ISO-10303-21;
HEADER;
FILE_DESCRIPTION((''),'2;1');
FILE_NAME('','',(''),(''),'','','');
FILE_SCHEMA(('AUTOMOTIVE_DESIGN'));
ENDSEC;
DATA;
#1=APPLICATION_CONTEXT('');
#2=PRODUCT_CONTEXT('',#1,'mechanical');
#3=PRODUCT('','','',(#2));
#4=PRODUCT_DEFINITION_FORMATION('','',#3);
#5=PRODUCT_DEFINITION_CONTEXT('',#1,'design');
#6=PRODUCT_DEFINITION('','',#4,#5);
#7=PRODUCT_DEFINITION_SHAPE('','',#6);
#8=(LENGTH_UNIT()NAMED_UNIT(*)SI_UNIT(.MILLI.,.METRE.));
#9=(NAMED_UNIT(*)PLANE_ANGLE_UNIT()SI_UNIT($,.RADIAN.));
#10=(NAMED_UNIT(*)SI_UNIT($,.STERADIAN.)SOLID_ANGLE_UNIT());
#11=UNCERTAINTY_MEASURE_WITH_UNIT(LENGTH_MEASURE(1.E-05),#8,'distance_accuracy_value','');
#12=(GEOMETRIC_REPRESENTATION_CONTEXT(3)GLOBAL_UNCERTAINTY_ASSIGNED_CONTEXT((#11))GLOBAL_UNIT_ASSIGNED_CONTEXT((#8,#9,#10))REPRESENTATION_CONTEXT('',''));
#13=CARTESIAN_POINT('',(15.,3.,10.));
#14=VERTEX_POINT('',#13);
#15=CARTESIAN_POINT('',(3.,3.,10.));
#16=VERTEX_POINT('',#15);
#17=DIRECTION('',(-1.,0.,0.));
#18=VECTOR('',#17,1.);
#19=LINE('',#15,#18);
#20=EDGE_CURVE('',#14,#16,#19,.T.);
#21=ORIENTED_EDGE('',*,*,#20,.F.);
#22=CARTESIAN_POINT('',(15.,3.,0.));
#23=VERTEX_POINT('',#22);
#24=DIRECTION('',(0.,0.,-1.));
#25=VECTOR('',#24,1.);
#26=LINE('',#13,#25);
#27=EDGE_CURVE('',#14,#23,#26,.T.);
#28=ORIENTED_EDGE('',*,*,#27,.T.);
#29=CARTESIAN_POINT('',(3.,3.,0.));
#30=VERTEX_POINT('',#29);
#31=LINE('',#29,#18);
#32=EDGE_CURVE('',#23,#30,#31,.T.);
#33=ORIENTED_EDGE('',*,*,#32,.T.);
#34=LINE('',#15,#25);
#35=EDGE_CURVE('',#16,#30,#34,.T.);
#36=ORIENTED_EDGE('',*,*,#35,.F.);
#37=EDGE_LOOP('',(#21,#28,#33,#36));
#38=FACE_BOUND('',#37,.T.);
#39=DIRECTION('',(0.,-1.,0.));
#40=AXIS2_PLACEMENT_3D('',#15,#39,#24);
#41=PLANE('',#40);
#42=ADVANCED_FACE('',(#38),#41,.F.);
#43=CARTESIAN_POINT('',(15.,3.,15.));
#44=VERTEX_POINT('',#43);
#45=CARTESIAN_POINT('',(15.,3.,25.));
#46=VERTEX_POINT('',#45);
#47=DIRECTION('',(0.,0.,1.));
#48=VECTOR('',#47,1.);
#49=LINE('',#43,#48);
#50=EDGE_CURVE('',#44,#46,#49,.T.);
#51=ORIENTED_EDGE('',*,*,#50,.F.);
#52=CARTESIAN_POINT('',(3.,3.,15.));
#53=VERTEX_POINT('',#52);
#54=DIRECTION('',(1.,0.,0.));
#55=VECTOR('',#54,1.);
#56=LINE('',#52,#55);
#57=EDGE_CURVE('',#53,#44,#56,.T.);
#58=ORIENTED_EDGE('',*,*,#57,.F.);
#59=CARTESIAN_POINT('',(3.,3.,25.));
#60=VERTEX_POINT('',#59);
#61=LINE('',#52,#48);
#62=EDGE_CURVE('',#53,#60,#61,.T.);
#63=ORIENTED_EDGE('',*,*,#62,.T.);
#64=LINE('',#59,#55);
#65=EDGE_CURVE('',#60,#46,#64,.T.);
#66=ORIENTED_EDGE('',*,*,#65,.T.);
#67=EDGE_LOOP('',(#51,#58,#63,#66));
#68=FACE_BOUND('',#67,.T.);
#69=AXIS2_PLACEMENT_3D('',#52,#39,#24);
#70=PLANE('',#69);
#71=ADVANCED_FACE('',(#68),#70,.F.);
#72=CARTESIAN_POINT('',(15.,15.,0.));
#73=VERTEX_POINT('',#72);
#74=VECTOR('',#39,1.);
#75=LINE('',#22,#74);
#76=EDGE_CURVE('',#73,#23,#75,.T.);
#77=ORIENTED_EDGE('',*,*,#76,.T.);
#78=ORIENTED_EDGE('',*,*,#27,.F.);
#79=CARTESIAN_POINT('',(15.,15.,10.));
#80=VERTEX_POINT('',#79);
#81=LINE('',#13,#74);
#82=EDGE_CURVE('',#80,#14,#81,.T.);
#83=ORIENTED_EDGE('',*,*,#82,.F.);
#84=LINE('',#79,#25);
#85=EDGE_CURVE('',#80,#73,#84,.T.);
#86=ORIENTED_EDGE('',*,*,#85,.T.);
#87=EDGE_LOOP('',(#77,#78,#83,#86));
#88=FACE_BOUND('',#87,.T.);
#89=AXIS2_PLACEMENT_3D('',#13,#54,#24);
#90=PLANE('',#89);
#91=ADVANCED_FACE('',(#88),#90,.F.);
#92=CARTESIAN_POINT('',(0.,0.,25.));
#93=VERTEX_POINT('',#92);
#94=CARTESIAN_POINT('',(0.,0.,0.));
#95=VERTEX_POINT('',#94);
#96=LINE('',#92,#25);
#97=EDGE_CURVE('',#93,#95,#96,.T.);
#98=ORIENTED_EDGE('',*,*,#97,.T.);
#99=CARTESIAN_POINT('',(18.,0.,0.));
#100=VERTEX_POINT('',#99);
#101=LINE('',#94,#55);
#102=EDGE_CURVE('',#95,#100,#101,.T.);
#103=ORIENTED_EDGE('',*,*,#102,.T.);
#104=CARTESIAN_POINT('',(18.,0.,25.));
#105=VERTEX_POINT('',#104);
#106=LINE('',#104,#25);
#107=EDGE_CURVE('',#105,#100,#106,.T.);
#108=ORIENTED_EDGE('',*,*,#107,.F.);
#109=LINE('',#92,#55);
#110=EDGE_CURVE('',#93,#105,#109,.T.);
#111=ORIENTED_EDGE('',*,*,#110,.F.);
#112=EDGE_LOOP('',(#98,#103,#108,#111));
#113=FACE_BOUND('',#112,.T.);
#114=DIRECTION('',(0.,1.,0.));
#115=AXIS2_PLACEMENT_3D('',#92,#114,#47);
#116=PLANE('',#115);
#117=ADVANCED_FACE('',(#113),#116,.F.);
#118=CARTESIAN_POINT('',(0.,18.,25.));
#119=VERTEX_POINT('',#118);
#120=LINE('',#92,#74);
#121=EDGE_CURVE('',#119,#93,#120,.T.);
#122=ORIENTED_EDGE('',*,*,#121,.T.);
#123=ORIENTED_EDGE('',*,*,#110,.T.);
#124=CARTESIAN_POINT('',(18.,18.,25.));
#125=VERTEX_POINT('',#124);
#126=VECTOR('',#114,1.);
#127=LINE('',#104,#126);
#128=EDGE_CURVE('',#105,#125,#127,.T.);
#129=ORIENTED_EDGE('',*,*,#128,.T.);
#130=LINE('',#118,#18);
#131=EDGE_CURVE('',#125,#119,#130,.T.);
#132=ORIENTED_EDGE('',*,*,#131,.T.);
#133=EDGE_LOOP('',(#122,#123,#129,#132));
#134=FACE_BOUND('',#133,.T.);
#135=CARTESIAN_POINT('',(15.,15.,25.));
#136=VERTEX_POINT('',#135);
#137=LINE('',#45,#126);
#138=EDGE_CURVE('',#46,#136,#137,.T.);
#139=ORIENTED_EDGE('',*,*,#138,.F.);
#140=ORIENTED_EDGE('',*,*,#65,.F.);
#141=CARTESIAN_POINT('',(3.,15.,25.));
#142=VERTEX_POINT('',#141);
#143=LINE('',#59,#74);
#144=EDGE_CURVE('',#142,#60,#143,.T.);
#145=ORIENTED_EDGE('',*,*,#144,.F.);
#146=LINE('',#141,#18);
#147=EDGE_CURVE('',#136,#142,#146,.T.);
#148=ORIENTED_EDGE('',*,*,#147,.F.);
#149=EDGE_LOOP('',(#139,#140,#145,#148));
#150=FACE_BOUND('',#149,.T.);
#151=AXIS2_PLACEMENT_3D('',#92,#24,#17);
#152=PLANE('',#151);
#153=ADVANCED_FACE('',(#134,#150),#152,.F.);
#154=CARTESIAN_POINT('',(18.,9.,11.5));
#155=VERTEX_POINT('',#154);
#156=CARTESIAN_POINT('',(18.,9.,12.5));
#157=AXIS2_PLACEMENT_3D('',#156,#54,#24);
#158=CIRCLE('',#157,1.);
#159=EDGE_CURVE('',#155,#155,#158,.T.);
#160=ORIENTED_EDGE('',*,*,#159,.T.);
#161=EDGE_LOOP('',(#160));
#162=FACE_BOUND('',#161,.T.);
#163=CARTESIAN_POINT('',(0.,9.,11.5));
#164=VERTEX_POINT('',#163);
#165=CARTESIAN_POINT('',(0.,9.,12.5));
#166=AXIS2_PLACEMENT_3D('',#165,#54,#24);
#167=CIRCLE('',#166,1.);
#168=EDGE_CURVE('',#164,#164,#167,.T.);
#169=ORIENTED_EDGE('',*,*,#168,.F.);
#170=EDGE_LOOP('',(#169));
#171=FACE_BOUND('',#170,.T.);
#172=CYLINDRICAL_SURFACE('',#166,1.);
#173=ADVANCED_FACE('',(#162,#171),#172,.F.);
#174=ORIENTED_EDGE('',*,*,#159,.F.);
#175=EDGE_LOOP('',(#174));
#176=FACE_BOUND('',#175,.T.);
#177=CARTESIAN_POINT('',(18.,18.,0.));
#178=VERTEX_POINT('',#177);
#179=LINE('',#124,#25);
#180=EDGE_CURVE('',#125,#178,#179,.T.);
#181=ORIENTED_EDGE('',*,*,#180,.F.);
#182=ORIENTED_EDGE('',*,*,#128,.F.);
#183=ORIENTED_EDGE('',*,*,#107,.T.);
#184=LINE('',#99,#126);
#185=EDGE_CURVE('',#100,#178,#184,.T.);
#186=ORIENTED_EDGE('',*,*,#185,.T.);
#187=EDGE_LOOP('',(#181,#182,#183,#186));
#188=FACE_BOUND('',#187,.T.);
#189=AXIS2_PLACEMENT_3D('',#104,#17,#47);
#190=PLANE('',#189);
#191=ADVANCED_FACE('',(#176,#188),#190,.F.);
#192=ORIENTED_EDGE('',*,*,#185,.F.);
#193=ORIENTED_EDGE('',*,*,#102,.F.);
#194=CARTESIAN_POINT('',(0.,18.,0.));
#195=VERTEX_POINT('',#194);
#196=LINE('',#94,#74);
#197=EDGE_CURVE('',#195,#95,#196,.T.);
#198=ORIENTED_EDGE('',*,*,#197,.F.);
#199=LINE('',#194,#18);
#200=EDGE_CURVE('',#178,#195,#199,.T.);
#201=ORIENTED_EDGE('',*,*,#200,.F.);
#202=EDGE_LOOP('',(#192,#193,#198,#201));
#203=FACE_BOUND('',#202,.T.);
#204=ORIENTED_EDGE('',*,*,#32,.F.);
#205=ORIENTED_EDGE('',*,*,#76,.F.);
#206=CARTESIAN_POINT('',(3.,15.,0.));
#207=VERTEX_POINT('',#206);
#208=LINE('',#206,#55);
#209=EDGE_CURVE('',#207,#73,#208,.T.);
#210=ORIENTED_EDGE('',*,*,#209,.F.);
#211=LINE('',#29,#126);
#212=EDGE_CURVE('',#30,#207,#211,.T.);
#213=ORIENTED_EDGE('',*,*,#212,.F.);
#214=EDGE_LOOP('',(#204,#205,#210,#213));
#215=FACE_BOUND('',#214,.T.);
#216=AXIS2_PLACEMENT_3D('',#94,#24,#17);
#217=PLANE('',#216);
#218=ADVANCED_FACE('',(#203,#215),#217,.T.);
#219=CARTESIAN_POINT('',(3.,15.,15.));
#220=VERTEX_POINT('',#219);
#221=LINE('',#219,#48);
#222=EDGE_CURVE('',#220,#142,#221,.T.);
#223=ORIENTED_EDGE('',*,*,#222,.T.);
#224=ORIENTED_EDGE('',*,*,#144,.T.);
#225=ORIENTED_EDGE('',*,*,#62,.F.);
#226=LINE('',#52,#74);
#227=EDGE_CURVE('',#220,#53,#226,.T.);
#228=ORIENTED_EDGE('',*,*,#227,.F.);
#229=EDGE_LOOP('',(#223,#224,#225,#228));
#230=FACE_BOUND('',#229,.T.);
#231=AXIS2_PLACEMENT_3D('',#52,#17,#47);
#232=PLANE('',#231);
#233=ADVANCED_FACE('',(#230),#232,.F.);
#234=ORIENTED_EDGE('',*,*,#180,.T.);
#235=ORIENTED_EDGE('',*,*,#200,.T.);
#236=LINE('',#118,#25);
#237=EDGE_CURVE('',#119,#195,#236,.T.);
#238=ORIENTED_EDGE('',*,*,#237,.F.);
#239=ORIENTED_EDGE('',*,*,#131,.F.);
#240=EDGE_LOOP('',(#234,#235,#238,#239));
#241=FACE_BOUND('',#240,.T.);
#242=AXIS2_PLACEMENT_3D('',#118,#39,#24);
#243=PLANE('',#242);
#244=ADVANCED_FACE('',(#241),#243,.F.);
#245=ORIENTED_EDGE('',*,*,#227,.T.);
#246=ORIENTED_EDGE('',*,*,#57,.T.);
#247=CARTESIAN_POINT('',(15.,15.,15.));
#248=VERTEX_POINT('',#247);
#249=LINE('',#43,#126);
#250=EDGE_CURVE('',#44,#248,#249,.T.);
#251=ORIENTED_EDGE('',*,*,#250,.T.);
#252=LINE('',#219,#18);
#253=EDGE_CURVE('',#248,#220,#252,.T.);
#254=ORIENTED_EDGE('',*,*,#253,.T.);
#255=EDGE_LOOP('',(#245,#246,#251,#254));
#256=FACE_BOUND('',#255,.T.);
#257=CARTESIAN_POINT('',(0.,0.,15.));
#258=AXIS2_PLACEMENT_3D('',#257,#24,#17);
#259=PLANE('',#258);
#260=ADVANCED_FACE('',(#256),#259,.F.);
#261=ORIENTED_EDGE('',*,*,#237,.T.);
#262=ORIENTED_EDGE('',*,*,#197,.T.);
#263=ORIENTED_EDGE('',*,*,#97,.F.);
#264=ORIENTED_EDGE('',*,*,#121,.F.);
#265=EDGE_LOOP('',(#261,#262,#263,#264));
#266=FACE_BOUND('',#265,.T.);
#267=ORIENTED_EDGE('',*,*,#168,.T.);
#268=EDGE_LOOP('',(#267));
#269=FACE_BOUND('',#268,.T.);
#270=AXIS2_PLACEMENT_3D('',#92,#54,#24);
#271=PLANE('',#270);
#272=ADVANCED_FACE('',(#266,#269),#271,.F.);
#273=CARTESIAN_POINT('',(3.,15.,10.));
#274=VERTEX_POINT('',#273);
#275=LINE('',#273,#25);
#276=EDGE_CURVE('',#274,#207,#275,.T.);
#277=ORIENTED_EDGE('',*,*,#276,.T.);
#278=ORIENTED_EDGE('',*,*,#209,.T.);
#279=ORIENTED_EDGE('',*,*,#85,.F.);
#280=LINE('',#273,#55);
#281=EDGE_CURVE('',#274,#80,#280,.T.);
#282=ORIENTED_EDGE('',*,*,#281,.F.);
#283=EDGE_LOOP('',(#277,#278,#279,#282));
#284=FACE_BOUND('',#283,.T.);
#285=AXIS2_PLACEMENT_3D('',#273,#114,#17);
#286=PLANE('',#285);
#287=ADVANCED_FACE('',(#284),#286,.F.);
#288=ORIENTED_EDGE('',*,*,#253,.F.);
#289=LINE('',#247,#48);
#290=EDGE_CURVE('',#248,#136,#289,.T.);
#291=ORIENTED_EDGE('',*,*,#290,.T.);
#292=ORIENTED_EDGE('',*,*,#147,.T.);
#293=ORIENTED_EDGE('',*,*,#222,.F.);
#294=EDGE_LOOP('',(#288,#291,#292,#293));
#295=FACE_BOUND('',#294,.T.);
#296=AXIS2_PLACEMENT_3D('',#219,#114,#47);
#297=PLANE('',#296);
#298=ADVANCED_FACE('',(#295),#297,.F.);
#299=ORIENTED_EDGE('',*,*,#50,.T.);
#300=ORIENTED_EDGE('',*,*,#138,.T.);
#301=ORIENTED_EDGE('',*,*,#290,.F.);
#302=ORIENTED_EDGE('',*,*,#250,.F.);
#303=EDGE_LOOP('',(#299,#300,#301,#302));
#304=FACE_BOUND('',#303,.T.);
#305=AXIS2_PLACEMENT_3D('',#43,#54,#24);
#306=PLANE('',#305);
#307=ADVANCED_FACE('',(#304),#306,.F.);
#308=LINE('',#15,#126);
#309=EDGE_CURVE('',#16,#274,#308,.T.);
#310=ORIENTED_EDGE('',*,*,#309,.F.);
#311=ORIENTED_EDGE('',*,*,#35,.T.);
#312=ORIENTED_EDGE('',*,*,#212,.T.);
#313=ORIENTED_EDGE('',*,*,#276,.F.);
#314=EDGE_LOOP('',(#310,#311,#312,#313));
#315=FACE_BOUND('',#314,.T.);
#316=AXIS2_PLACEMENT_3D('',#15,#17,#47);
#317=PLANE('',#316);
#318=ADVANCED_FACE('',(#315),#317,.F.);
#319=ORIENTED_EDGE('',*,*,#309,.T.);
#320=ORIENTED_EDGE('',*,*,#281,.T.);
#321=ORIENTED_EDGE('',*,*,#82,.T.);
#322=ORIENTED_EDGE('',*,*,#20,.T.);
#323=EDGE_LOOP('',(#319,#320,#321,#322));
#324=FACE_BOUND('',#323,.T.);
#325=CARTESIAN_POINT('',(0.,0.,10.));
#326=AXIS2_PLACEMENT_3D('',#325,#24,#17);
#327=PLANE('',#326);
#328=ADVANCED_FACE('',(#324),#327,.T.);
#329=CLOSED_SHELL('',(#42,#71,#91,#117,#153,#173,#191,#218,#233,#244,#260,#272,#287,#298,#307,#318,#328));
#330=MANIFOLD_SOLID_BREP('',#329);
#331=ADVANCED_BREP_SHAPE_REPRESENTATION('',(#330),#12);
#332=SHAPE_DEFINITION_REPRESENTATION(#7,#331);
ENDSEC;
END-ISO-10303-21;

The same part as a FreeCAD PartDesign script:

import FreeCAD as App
import Part
import Sketcher

V = App.Vector
Q = App.Units.Quantity

doc = App.newDocument("Part")
params = doc.addObject("Spreadsheet::Sheet", "Params")
for row, (alias, value) in enumerate([
    ("sketch1_width", "18 mm"),
    ("pad1_length", "25 mm"),
    ("sketch2_width", "12 mm"),
    ("pocket1_length", "10 mm"),
    ("sketch3_width", "12 mm"),
    ("pocket2_length", "10 mm"),
    ("sketch4_diameter", "2 mm"),
    ("pocket3_length", "18 mm"),
], start=1):
    params.set(f"A{row}", alias)
    params.set(f"B{row}", "=" + value)
    params.setAlias(f"B{row}", alias)

body = doc.addObject("PartDesign::Body", "Body")

# Sketch on XY plane
sketch1 = body.newObject("Sketcher::SketchObject", "Sketch")
sketch1.AttachmentSupport = (doc.getObject("XY_Plane"), [""])
sketch1.MapMode = "FlatFace"
sketch1.addGeometry(Part.LineSegment(V(0, 18, 0), V(0, 0, 0)), False)
sketch1.addGeometry(Part.LineSegment(V(0, 0, 0), V(18, 0, 0)), False)
sketch1.addGeometry(Part.LineSegment(V(18, 0, 0), V(18, 18, 0)), False)
sketch1.addGeometry(Part.LineSegment(V(18, 18, 0), V(0, 18, 0)), False)
sketch1.addConstraint(Sketcher.Constraint("Coincident", 0, 2, 1, 1))
sketch1.addConstraint(Sketcher.Constraint("Coincident", 1, 2, 2, 1))
sketch1.addConstraint(Sketcher.Constraint("Coincident", 2, 2, 3, 1))
sketch1.addConstraint(Sketcher.Constraint("Coincident", 3, 2, 0, 1))
sketch1.addConstraint(Sketcher.Constraint("Vertical", 0))
sketch1.addConstraint(Sketcher.Constraint("Horizontal", 1))
sketch1.addConstraint(Sketcher.Constraint("Vertical", 2))
sketch1.addConstraint(Sketcher.Constraint("Horizontal", 3))
sketch1.addConstraint(Sketcher.Constraint("Coincident", 0, 2, -1, 1))
sketch1.addConstraint(Sketcher.Constraint("Equal", 3, 0))
sketch1.addConstraint(Sketcher.Constraint("DistanceX", 1, 1, 1, 2, Q("18 mm")))
sketch1.setExpression("Constraints[10]", "Params.sketch1_width")
pad1 = body.newObject("PartDesign::Pad", "Pad")
pad1.Profile = sketch1
pad1.setExpression("Length", "Params.pad1_length")

# Sketch on XY plane
sketch2 = body.newObject("Sketcher::SketchObject", "Sketch001")
sketch2.AttachmentSupport = (doc.getObject("XY_Plane"), [""])
sketch2.MapMode = "FlatFace"
sketch2.addGeometry(Part.LineSegment(V(15, 15, 0), V(15, 3, 0)), False)
sketch2.addGeometry(Part.LineSegment(V(15, 3, 0), V(3, 3, 0)), False)
sketch2.addGeometry(Part.LineSegment(V(3, 3, 0), V(3, 15, 0)), False)
sketch2.addGeometry(Part.LineSegment(V(3, 15, 0), V(15, 15, 0)), False)
sketch2.addConstraint(Sketcher.Constraint("Coincident", 0, 2, 1, 1))
sketch2.addConstraint(Sketcher.Constraint("Coincident", 1, 2, 2, 1))
sketch2.addConstraint(Sketcher.Constraint("Coincident", 2, 2, 3, 1))
sketch2.addConstraint(Sketcher.Constraint("Coincident", 3, 2, 0, 1))
sketch2.addConstraint(Sketcher.Constraint("Vertical", 0))
sketch2.addConstraint(Sketcher.Constraint("Horizontal", 1))
sketch2.addConstraint(Sketcher.Constraint("Vertical", 2))
sketch2.addConstraint(Sketcher.Constraint("Horizontal", 3))
sketch2.addConstraint(Sketcher.Constraint("Equal", 3, 0))
sketch2.addConstraint(Sketcher.Constraint("DistanceX", 1, 2, 1, 1, Q("12 mm")))
sketch2.addConstraint(Sketcher.Constraint("DistanceX", -1, 1, 0, 2, Q("15 mm")))
sketch2.addConstraint(Sketcher.Constraint("DistanceY", -1, 1, 0, 2, Q("3 mm")))
sketch2.setExpression("Constraints[9]", "Params.sketch2_width")
pocket1 = body.newObject("PartDesign::Pocket", "Pocket")
pocket1.Profile = sketch2
pocket1.setExpression("Length", "Params.pocket1_length")
pocket1.Reversed = True

# Sketch on XY plane
sketch3 = body.newObject("Sketcher::SketchObject", "Sketch002")
sketch3.AttachmentSupport = (doc.getObject("XY_Plane"), [""])
sketch3.MapMode = "FlatFace"
sketch3.AttachmentOffset = App.Placement(V(0, 0, 25), App.Rotation())
sketch3.addGeometry(Part.LineSegment(V(3, 15, 0), V(3, 3, 0)), False)
sketch3.addGeometry(Part.LineSegment(V(3, 3, 0), V(15, 3, 0)), False)
sketch3.addGeometry(Part.LineSegment(V(15, 3, 0), V(15, 15, 0)), False)
sketch3.addGeometry(Part.LineSegment(V(15, 15, 0), V(3, 15, 0)), False)
sketch3.addConstraint(Sketcher.Constraint("Coincident", 0, 2, 1, 1))
sketch3.addConstraint(Sketcher.Constraint("Coincident", 1, 2, 2, 1))
sketch3.addConstraint(Sketcher.Constraint("Coincident", 2, 2, 3, 1))
sketch3.addConstraint(Sketcher.Constraint("Coincident", 3, 2, 0, 1))
sketch3.addConstraint(Sketcher.Constraint("Vertical", 0))
sketch3.addConstraint(Sketcher.Constraint("Horizontal", 1))
sketch3.addConstraint(Sketcher.Constraint("Vertical", 2))
sketch3.addConstraint(Sketcher.Constraint("Horizontal", 3))
sketch3.addConstraint(Sketcher.Constraint("Equal", 3, 0))
sketch3.addConstraint(Sketcher.Constraint("DistanceX", 1, 1, 1, 2, Q("12 mm")))
sketch3.addConstraint(Sketcher.Constraint("DistanceX", -1, 1, 0, 2, Q("3 mm")))
sketch3.addConstraint(Sketcher.Constraint("DistanceY", -1, 1, 0, 2, Q("3 mm")))
sketch3.setExpression("Constraints[9]", "Params.sketch3_width")
pocket2 = body.newObject("PartDesign::Pocket", "Pocket001")
pocket2.Profile = sketch3
pocket2.setExpression("Length", "Params.pocket2_length")

# Sketch on YZ plane
sketch4 = body.newObject("Sketcher::SketchObject", "Sketch003")
sketch4.AttachmentSupport = (doc.getObject("YZ_Plane"), [""])
sketch4.MapMode = "FlatFace"
sketch4.AttachmentOffset = App.Placement(V(0, 0, 18), App.Rotation())
sketch4.addGeometry(Part.Circle(V(9, 12.5, 0), V(0, 0, 1), 1), False)
sketch4.addConstraint(Sketcher.Constraint("Diameter", 0, Q("2 mm")))
sketch4.addConstraint(Sketcher.Constraint("DistanceX", -1, 1, 0, 3, Q("9 mm")))
sketch4.addConstraint(Sketcher.Constraint("DistanceY", -1, 1, 0, 3, Q("12.5 mm")))
sketch4.setExpression("Constraints[0]", "Params.sketch4_diameter")
pocket3 = body.newObject("PartDesign::Pocket", "Pocket002")
pocket3.Profile = sketch4
pocket3.setExpression("Length", "Params.pocket3_length")

doc.recompute()
